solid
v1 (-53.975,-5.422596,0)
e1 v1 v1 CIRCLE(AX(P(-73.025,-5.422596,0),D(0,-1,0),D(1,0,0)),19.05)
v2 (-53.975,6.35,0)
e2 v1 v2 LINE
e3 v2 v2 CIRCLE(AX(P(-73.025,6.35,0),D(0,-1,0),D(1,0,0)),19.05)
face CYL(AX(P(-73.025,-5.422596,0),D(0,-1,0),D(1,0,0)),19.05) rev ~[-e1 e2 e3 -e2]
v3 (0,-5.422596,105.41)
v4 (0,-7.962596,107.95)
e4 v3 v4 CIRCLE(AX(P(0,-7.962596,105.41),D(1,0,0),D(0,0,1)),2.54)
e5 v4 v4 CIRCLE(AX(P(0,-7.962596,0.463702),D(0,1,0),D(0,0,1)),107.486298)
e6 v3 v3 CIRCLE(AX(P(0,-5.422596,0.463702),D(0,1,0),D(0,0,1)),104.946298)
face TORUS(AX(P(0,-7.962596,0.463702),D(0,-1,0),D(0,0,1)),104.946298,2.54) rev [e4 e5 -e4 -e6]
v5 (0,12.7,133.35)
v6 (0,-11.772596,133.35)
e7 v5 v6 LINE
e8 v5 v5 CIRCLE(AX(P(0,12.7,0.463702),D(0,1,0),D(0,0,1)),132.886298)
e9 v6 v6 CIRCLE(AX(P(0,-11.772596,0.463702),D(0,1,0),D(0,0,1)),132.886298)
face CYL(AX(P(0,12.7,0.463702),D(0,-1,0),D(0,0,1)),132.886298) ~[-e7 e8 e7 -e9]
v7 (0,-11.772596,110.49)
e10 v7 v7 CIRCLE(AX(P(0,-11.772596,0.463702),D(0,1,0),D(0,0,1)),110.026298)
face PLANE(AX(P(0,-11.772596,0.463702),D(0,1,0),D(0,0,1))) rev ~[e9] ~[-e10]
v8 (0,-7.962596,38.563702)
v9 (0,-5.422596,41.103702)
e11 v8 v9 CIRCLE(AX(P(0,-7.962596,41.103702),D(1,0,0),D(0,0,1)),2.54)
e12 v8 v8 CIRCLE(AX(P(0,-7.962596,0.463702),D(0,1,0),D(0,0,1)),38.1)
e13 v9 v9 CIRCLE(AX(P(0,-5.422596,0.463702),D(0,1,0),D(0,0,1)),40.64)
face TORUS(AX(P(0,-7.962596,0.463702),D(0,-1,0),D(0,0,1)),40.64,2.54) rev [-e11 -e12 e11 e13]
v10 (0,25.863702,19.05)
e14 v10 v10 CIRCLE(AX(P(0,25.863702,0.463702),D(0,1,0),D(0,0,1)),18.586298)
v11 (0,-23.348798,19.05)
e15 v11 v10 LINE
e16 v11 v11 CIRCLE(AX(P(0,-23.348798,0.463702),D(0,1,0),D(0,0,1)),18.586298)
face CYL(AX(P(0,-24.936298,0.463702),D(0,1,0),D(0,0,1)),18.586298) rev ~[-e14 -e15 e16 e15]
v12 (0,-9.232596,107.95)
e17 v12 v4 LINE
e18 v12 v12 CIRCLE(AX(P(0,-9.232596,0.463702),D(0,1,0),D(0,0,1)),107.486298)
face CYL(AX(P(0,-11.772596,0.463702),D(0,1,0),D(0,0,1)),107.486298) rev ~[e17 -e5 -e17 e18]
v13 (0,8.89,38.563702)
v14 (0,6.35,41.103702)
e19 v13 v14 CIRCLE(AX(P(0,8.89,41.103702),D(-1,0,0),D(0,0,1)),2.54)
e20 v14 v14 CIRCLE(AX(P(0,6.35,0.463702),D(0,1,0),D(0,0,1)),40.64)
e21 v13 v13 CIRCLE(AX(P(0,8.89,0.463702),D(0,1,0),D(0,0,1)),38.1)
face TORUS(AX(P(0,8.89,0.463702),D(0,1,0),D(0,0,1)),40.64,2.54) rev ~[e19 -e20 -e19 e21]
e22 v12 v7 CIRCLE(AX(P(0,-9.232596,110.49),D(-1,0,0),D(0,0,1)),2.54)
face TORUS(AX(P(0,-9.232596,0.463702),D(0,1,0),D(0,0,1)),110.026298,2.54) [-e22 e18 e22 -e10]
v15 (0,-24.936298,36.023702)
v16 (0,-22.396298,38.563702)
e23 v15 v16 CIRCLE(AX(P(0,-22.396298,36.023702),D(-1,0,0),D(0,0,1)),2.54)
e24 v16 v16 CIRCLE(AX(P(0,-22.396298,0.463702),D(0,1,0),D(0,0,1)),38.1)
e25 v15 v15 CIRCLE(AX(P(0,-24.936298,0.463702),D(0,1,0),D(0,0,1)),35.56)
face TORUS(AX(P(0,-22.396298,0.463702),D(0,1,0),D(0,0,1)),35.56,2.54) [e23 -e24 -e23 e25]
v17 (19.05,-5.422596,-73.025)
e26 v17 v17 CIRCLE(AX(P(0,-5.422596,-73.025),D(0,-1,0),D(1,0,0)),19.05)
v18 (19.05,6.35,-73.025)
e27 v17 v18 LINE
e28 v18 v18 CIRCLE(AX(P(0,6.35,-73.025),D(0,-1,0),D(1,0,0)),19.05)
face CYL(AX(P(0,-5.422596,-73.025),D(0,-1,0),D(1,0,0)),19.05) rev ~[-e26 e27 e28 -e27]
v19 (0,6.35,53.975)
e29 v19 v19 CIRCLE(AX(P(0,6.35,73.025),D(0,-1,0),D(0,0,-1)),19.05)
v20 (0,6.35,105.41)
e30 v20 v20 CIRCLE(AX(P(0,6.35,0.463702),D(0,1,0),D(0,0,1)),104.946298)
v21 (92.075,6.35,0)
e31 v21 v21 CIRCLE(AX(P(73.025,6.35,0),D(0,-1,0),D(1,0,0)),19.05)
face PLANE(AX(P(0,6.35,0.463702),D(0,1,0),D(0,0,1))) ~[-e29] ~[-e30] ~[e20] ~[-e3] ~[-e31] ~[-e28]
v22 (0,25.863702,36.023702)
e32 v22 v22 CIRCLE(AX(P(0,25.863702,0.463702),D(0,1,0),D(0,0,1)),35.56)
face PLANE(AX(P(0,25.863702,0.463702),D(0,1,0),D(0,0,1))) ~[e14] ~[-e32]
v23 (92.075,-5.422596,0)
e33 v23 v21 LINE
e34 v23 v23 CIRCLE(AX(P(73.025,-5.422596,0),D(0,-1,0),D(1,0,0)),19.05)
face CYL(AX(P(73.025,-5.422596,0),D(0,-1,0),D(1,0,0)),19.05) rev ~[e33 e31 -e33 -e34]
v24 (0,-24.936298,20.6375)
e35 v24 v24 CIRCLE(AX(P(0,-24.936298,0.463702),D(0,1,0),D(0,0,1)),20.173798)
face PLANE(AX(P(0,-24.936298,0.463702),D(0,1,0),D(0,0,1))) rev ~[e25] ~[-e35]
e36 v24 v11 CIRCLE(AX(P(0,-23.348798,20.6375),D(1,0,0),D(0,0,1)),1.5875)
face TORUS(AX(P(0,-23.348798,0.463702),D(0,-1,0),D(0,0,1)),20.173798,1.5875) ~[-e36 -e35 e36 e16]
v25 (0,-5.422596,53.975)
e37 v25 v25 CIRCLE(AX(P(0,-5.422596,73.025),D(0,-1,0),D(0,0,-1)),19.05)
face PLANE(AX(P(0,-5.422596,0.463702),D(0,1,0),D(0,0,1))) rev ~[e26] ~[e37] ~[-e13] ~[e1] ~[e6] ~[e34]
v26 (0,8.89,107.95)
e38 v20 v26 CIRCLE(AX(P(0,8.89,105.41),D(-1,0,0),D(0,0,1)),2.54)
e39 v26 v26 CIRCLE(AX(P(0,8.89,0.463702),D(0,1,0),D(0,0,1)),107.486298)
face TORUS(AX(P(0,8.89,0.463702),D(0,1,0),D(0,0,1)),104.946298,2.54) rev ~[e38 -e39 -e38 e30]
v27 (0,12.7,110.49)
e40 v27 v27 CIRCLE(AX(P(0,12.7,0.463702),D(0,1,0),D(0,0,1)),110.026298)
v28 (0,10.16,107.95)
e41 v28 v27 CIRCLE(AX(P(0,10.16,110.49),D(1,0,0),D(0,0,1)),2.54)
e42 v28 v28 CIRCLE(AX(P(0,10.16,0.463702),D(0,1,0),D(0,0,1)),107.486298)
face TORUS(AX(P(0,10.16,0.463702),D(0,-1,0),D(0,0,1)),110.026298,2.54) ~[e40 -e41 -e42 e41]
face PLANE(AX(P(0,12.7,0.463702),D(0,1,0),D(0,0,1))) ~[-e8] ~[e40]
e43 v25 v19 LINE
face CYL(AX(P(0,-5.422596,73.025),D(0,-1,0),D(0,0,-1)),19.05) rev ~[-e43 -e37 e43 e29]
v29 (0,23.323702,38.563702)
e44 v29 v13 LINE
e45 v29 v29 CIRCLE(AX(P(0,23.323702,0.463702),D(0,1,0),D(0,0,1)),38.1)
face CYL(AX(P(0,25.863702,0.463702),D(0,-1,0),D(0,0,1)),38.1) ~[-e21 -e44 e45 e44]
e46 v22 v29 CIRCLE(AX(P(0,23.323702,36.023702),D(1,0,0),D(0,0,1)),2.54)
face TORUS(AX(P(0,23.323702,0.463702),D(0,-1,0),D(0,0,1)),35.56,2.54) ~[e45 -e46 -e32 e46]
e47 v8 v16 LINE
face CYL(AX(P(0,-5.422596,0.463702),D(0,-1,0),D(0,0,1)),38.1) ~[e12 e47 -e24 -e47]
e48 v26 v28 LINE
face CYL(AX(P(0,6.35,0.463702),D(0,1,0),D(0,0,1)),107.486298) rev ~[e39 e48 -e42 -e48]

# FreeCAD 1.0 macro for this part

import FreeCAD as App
import Part
import Sketcher

V = App.Vector
Q = App.Units.Quantity


def edges_at(feature, points):
    """Names of the edges that pass closest to the given points."""
    edges = feature.Shape.Edges
    near = lambda p: min(range(len(edges)), key=lambda i: edges[i].distToShape(Part.Vertex(*p))[0])
    return sorted({f"Edge{near(p) + 1}" for p in points})


def add_polygon(sketch, points):
    """Adds a closed chain of lines whose ends are joined by coincident constraints."""
    first, n = sketch.GeometryCount, len(points)
    for a, b in zip(points, points[1:] + points[:1]):
        sketch.addGeometry(Part.LineSegment(App.Vector(*a, 0), App.Vector(*b, 0)), False)
    for i in range(n):
        sketch.addConstraint(Sketcher.Constraint("Coincident", first + i, 2, first + (i + 1) % n, 1))

doc = App.newDocument("Part")
params = doc.addObject("Spreadsheet::Sheet", "Params")
for row, (alias, value) in enumerate([
    ("sketch1_width", "2 in"),
    ("sketch1_height", "1 in"),
    ("sketch1_width2", "0.25 in"),
    ("revolution_angle", "360 deg"),
    ("sketch2_diameter", "1.5 in"),
    ("pocket1_length", "1 in"),
    ("fillet_radius", "0.1 in"),
    ("fillet2_radius", "0.0625 in"),
    ("fillet3_radius", "0.1 in"),
], start=1):
    params.set(f"A{row}", alias)
    params.set(f"B{row}", "=" + value)
    params.setAlias(f"B{row}", alias)

body = doc.addObject("PartDesign::Body", "Body")

# Sketch on YZ plane
sketch1 = doc.addObject("Sketcher::SketchObject", "Sketch")
body.addObject(sketch1)
sketch1.AttachmentSupport = (doc.YZ_Plane, [""])
sketch1.MapMode = "FlatFace"
add_polygon(sketch1, [(-24.936298, 19.05), (25.863702, 19.05), (25.863702, 38.563702), (6.35, 38.563702), (6.35, 107.95), (12.7, 107.95), (12.7, 133.35), (-11.772596, 133.35), (-11.772596, 107.95), (-5.422596, 107.95), (-5.422596, 38.563702), (-24.936298, 38.563702)])  # lines 0-11
sketch1.addGeometry(Part.LineSegment(V(-24.936298, 0.463702, 0), V(25.863702, 0.463702, 0)), True)  # axis
sketch1.addConstraint(Sketcher.Constraint("Horizontal", 0))
sketch1.addConstraint(Sketcher.Constraint("Vertical", 1))
sketch1.addConstraint(Sketcher.Constraint("Horizontal", 2))
sketch1.addConstraint(Sketcher.Constraint("Vertical", 3))
sketch1.addConstraint(Sketcher.Constraint("Horizontal", 4))
sketch1.addConstraint(Sketcher.Constraint("Vertical", 5))
sketch1.addConstraint(Sketcher.Constraint("Horizontal", 6))
sketch1.addConstraint(Sketcher.Constraint("Vertical", 7))
sketch1.addConstraint(Sketcher.Constraint("Horizontal", 8))
sketch1.addConstraint(Sketcher.Constraint("Vertical", 9))
sketch1.addConstraint(Sketcher.Constraint("Horizontal", 10))
sketch1.addConstraint(Sketcher.Constraint("Vertical", 11))
sketch1.addConstraint(Sketcher.Constraint("Horizontal", 12))
sketch1.addConstraint(Sketcher.Constraint("Horizontal", 4, 2, 7, 2))
sketch1.addConstraint(Sketcher.Constraint("Horizontal", 2, 2, 9, 2))
sketch1.addConstraint(Sketcher.Constraint("Vertical", 11, 2, 12, 1))
sketch1.addConstraint(Sketcher.Constraint("Vertical", 1, 2, 12, 2))
sketch1.addConstraint(Sketcher.Constraint("Equal", 4, 8))
sketch1.addConstraint(Sketcher.Constraint("Equal", 2, 10))
sketch1.addConstraint(Sketcher.Constraint("Equal", 10, 1))
sketch1.addConstraint(Sketcher.Constraint("DistanceX", 0, 1, 0, 2, Q("2 in")))
sketch1.addConstraint(Sketcher.Constraint("DistanceY", 5, 1, 5, 2, Q("1 in")))
sketch1.addConstraint(Sketcher.Constraint("DistanceX", 4, 1, 4, 2, Q("0.25 in")))
sketch1.addConstraint(Sketcher.Constraint("DistanceX", -1, 1, 4, 2, Q("0.5 in")))
sketch1.addConstraint(Sketcher.Constraint("DistanceY", 0, 2, 3, 2, Q("3.5 in")))
sketch1.addConstraint(Sketcher.Constraint("DistanceY", 12, 1, 10, 2, Q("1.5 in")))
sketch1.addConstraint(Sketcher.Constraint("DistanceY", -1, 1, 0, 2, Q("0.75 in")))
sketch1.addConstraint(Sketcher.Constraint("DistanceX", 2, 2, 2, 1, Q("19.513702 mm")))
sketch1.setExpression("Constraints[32]", "Params.sketch1_width")
sketch1.setExpression("Constraints[33]", "Params.sketch1_height")
sketch1.setExpression("Constraints[34]", "Params.sketch1_width2")
revolution = doc.addObject("PartDesign::Revolution", "Revolution")
body.addObject(revolution)
revolution.Profile = sketch1
revolution.ReferenceAxis = (sketch1, ["Axis0"])
revolution.setExpression("Angle", "Params.revolution_angle")

# Sketch on XZ plane
sketch2 = doc.addObject("Sketcher::SketchObject", "Sketch001")
body.addObject(sketch2)
sketch2.AttachmentSupport = (doc.XZ_Plane, [""])
sketch2.MapMode = "FlatFace"
sketch2.AttachmentOffset = App.Placement(V(0, 0, 5.422596), App.Rotation())
sketch2.addGeometry(Part.Circle(V(0, 73.025, 0), V(0, 0, 1), 19.05), False)
sketch2.addGeometry(Part.Circle(V(-73.025, 0, 0), V(0, 0, 1), 19.05), False)
sketch2.addGeometry(Part.Circle(V(73.025, 0, 0), V(0, 0, 1), 19.05), False)
sketch2.addGeometry(Part.Circle(V(0, -73.025, 0), V(0, 0, 1), 19.05), False)
sketch2.addConstraint(Sketcher.Constraint("Equal", 0, 1))
sketch2.addConstraint(Sketcher.Constraint("Equal", 1, 2))
sketch2.addConstraint(Sketcher.Constraint("Equal", 2, 3))
sketch2.addConstraint(Sketcher.Constraint("Symmetric", 1, 3, 2, 3, -1, 1))
sketch2.addConstraint(Sketcher.Constraint("Symmetric", 0, 3, 3, 3, -1, 1))
sketch2.addConstraint(Sketcher.Constraint("PointOnObject", 0, 3, -2))
sketch2.addConstraint(Sketcher.Constraint("PointOnObject", 1, 3, -1))
sketch2.addConstraint(Sketcher.Constraint("Diameter", 0, Q("1.5 in")))
sketch2.addConstraint(Sketcher.Constraint("DistanceX", 1, 3, 2, 3, Q("5.75 in")))
sketch2.addConstraint(Sketcher.Constraint("DistanceY", 3, 3, 0, 3, Q("5.75 in")))
sketch2.setExpression("Constraints[7]", "Params.sketch2_diameter")
pocket1 = doc.addObject("PartDesign::Pocket", "Pocket")
body.addObject(pocket1)
pocket1.Profile = sketch2
pocket1.setExpression("Length", "Params.pocket1_length")
doc.recompute()

fillet = doc.addObject("PartDesign::Fillet", "Fillet")
body.addObject(fillet)
fillet.Base = (pocket1, edges_at(pocket1, [
    (0, -11.773, -107.023),
    (0, -5.423, -107.023),
    (0, -24.936, -37.636),
    (0, -5.423, -37.636),
]))
fillet.setExpression("Radius", "Params.fillet_radius")
doc.recompute()

fillet2 = doc.addObject("PartDesign::Fillet", "Fillet001")
body.addObject(fillet2)
fillet2.Base = (fillet, edges_at(fillet, [(0, -24.936, -18.123)]))
fillet2.setExpression("Radius", "Params.fillet2_radius")
doc.recompute()

fillet3 = doc.addObject("PartDesign::Fillet", "Fillet002")
body.addObject(fillet3)
fillet3.Base = (fillet2, edges_at(fillet2, [
    (0, 6.35, -37.636),
    (0, 25.864, -37.636),
    (0, 12.7, -107.023),
    (0, 6.35, -107.023),
]))
fillet3.setExpression("Radius", "Params.fillet3_radius")

doc.recompute()
